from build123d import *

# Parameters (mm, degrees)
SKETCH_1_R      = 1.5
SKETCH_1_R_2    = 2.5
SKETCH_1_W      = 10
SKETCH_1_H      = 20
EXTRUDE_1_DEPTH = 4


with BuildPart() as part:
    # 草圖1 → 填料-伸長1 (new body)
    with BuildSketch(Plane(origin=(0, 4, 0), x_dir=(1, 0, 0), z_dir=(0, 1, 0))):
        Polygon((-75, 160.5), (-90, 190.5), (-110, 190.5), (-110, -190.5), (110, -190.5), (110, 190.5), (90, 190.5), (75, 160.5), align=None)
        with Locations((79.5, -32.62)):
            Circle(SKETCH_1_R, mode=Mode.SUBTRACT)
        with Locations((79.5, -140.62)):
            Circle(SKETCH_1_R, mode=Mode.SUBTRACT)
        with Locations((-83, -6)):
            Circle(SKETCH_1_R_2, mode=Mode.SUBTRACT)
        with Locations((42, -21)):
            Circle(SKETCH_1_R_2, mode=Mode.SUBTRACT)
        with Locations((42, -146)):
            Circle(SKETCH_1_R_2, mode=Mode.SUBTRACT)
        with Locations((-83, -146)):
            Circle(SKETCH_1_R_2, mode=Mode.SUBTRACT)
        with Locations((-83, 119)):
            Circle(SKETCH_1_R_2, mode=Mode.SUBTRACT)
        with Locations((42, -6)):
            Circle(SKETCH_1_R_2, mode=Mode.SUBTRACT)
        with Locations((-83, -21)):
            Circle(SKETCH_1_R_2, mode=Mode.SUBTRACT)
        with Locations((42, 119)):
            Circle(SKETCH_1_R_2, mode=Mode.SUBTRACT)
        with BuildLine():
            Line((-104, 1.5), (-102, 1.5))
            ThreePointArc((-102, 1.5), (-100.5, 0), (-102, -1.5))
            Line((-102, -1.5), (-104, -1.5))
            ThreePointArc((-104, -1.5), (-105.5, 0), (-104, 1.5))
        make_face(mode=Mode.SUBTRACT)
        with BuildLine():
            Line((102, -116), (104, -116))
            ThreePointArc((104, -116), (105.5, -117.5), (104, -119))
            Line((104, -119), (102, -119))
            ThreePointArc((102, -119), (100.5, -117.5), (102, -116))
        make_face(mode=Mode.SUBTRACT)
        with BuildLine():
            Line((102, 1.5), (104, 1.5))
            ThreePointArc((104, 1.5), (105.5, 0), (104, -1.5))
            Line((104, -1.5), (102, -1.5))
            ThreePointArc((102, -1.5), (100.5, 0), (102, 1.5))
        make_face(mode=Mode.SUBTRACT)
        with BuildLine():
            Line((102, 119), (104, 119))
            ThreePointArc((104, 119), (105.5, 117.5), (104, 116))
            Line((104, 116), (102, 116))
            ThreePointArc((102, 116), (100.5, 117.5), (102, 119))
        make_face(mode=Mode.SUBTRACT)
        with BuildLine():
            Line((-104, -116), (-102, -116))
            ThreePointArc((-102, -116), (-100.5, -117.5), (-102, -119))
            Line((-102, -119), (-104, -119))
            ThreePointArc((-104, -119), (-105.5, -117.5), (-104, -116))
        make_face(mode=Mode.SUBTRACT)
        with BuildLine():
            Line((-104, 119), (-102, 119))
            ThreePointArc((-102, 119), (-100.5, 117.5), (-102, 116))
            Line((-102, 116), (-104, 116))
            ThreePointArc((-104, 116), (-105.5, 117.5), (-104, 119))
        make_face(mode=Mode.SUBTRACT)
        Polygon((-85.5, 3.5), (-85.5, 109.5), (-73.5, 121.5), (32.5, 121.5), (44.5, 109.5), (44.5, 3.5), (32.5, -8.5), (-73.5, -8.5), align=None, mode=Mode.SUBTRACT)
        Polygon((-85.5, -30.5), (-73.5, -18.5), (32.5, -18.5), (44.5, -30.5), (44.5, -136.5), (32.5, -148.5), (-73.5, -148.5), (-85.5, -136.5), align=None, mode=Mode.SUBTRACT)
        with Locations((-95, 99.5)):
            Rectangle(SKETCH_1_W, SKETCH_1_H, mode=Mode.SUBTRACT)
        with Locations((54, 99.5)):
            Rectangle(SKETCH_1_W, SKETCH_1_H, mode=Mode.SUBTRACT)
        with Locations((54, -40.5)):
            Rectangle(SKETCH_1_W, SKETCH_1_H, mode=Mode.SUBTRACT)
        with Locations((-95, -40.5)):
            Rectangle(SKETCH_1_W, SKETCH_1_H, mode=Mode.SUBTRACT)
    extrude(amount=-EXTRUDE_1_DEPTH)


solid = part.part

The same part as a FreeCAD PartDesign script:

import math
import FreeCAD as App
import Part
import Sketcher

V = App.Vector
Q = App.Units.Quantity

doc = App.newDocument("Part")
body = doc.addObject("PartDesign::Body", "Body")

# Sketch on XZ plane
sketch1 = body.newObject("Sketcher::SketchObject", "Sketch")
sketch1.AttachmentSupport = (doc.getObject("XZ_Plane"), [""])
sketch1.MapMode = "FlatFace"
sketch1.AttachmentOffset = App.Placement(V(0, 0, -4), App.Rotation())
sketch1.addGeometry([
    Part.LineSegment(V(-75, -160.5, 0), V(-90, -190.5, 0)),  # 0
    Part.LineSegment(V(-90, -190.5, 0), V(-110, -190.5, 0)),  # 1
    Part.LineSegment(V(-110, -190.5, 0), V(-110, 190.5, 0)),  # 2
    Part.LineSegment(V(-110, 190.5, 0), V(110, 190.5, 0)),  # 3
    Part.LineSegment(V(110, 190.5, 0), V(110, -190.5, 0)),  # 4
    Part.LineSegment(V(110, -190.5, 0), V(90, -190.5, 0)),  # 5
    Part.LineSegment(V(90, -190.5, 0), V(75, -160.5, 0)),  # 6
    Part.LineSegment(V(75, -160.5, 0), V(-75, -160.5, 0)),  # 7
    Part.Circle(V(-83, 146, 0), V(0, 0, 1), 2.5),  # 8
    Part.ArcOfCircle(Part.Circle(V(-104, 117.5, 0), V(0, 0, 1), 1.5), math.radians(90), math.radians(270)),  # 9
    Part.LineSegment(V(-104, 116, 0), V(-102, 116, 0)),  # 10
    Part.ArcOfCircle(Part.Circle(V(-102, 117.5, 0), V(0, 0, 1), 1.5), math.radians(-90), math.radians(90)),  # 11
    Part.LineSegment(V(-102, 119, 0), V(-104, 119, 0)),  # 12
    Part.LineSegment(V(-85.5, 136.5, 0), V(-85.5, 30.5, 0)),  # 13
    Part.LineSegment(V(-85.5, 30.5, 0), V(-73.5, 18.5, 0)),  # 14
    Part.LineSegment(V(-73.5, 18.5, 0), V(32.5, 18.5, 0)),  # 15
    Part.LineSegment(V(32.5, 18.5, 0), V(44.5, 30.5, 0)),  # 16
    Part.LineSegment(V(44.5, 30.5, 0), V(44.5, 136.5, 0)),  # 17
    Part.LineSegment(V(44.5, 136.5, 0), V(32.5, 148.5, 0)),  # 18
    Part.LineSegment(V(32.5, 148.5, 0), V(-73.5, 148.5, 0)),  # 19
    Part.LineSegment(V(-73.5, 148.5, 0), V(-85.5, 136.5, 0)),  # 20
    Part.LineSegment(V(-90, 50.5, 0), V(-100, 50.5, 0)),  # 21
    Part.LineSegment(V(-100, 50.5, 0), V(-100, 30.5, 0)),  # 22
    Part.LineSegment(V(-100, 30.5, 0), V(-90, 30.5, 0)),  # 23
    Part.LineSegment(V(-90, 30.5, 0), V(-90, 50.5, 0)),  # 24
    Part.Circle(V(-83, 21, 0), V(0, 0, 1), 2.5),  # 25
    Part.Circle(V(42, 146, 0), V(0, 0, 1), 2.5),  # 26
    Part.Circle(V(79.5, 140.62, 0), V(0, 0, 1), 1.5),  # 27
    Part.ArcOfCircle(Part.Circle(V(102, 117.5, 0), V(0, 0, 1), 1.5), math.radians(90), math.radians(270)),  # 28
    Part.LineSegment(V(102, 116, 0), V(104, 116, 0)),  # 29
    Part.ArcOfCircle(Part.Circle(V(104, 117.5, 0), V(0, 0, 1), 1.5), math.radians(-90), math.radians(90)),  # 30
    Part.LineSegment(V(104, 119, 0), V(102, 119, 0)),  # 31
    Part.Circle(V(42, 21, 0), V(0, 0, 1), 2.5),  # 32
    Part.LineSegment(V(59, 50.5, 0), V(49, 50.5, 0)),  # 33
    Part.LineSegment(V(49, 50.5, 0), V(49, 30.5, 0)),  # 34
    Part.LineSegment(V(49, 30.5, 0), V(59, 30.5, 0)),  # 35
    Part.LineSegment(V(59, 30.5, 0), V(59, 50.5, 0)),  # 36
    Part.Circle(V(79.5, 32.62, 0), V(0, 0, 1), 1.5),  # 37
    Part.ArcOfCircle(Part.Circle(V(-104, 0, 0), V(0, 0, 1), 1.5), math.radians(90), math.radians(270)),  # 38
    Part.LineSegment(V(-104, -1.5, 0), V(-102, -1.5, 0)),  # 39
    Part.ArcOfCircle(Part.Circle(V(-102, 0, 0), V(0, 0, 1), 1.5), math.radians(-90), math.radians(90)),  # 40
    Part.LineSegment(V(-102, 1.5, 0), V(-104, 1.5, 0)),  # 41
    Part.Circle(V(-83, 6, 0), V(0, 0, 1), 2.5),  # 42
    Part.LineSegment(V(-90, -89.5, 0), V(-100, -89.5, 0)),  # 43
    Part.LineSegment(V(-100, -89.5, 0), V(-100, -109.5, 0)),  # 44
    Part.LineSegment(V(-100, -109.5, 0), V(-90, -109.5, 0)),  # 45
    Part.LineSegment(V(-90, -109.5, 0), V(-90, -89.5, 0)),  # 46
    Part.ArcOfCircle(Part.Circle(V(-104, -117.5, 0), V(0, 0, 1), 1.5), math.radians(90), math.radians(270)),  # 47
    Part.LineSegment(V(-104, -119, 0), V(-102, -119, 0)),  # 48
    Part.ArcOfCircle(Part.Circle(V(-102, -117.5, 0), V(0, 0, 1), 1.5), math.radians(-90), math.radians(90)),  # 49
    Part.LineSegment(V(-102, -116, 0), V(-104, -116, 0)),  # 50
    Part.Circle(V(-83, -119, 0), V(0, 0, 1), 2.5),  # 51
    Part.LineSegment(V(-73.5, 8.5, 0), V(-85.5, -3.5, 0)),  # 52
    Part.LineSegment(V(-85.5, -3.5, 0), V(-85.5, -109.5, 0)),  # 53
    Part.LineSegment(V(-85.5, -109.5, 0), V(-73.5, -121.5, 0)),  # 54
    Part.LineSegment(V(-73.5, -121.5, 0), V(32.5, -121.5, 0)),  # 55
    Part.LineSegment(V(32.5, -121.5, 0), V(44.5, -109.5, 0)),  # 56
    Part.LineSegment(V(44.5, -109.5, 0), V(44.5, -3.5, 0)),  # 57
    Part.LineSegment(V(44.5, -3.5, 0), V(32.5, 8.5, 0)),  # 58
    Part.LineSegment(V(32.5, 8.5, 0), V(-73.5, 8.5, 0)),  # 59
    Part.Circle(V(42, 6, 0), V(0, 0, 1), 2.5),  # 60
    Part.ArcOfCircle(Part.Circle(V(102, 0, 0), V(0, 0, 1), 1.5), math.radians(90), math.radians(270)),  # 61
    Part.LineSegment(V(102, -1.5, 0), V(104, -1.5, 0)),  # 62
    Part.ArcOfCircle(Part.Circle(V(104, 0, 0), V(0, 0, 1), 1.5), math.radians(-90), math.radians(90)),  # 63
    Part.LineSegment(V(104, 1.5, 0), V(102, 1.5, 0)),  # 64
    Part.Circle(V(42, -119, 0), V(0, 0, 1), 2.5),  # 65
    Part.LineSegment(V(59, -89.5, 0), V(49, -89.5, 0)),  # 66
    Part.LineSegment(V(49, -89.5, 0), V(49, -109.5, 0)),  # 67
    Part.LineSegment(V(49, -109.5, 0), V(59, -109.5, 0)),  # 68
    Part.LineSegment(V(59, -109.5, 0), V(59, -89.5, 0)),  # 69
    Part.ArcOfCircle(Part.Circle(V(102, -117.5, 0), V(0, 0, 1), 1.5), math.radians(90), math.radians(270)),  # 70
    Part.LineSegment(V(102, -119, 0), V(104, -119, 0)),  # 71
    Part.ArcOfCircle(Part.Circle(V(104, -117.5, 0), V(0, 0, 1), 1.5), math.radians(-90), math.radians(90)),  # 72
    Part.LineSegment(V(104, -116, 0), V(102, -116, 0)),  # 73
], False)
sketch1.addConstraint([
    Sketcher.Constraint("Coincident", 0, 2, 1, 1),
    Sketcher.Constraint("Coincident", 1, 2, 2, 1),
    Sketcher.Constraint("Coincident", 2, 2, 3, 1),
    Sketcher.Constraint("Coincident", 3, 2, 4, 1),
    Sketcher.Constraint("Coincident", 4, 2, 5, 1),
    Sketcher.Constraint("Coincident", 5, 2, 6, 1),
    Sketcher.Constraint("Coincident", 6, 2, 7, 1),
    Sketcher.Constraint("Coincident", 7, 2, 0, 1),
    Sketcher.Constraint("Tangent", 9, 2, 10, 1),
    Sketcher.Constraint("Tangent", 10, 2, 11, 1),
    Sketcher.Constraint("Tangent", 11, 2, 12, 1),
    Sketcher.Constraint("Tangent", 12, 2, 9, 1),
    Sketcher.Constraint("Coincident", 13, 2, 14, 1),
    Sketcher.Constraint("Coincident", 14, 2, 15, 1),
    Sketcher.Constraint("Coincident", 15, 2, 16, 1),
    Sketcher.Constraint("Coincident", 16, 2, 17, 1),
    Sketcher.Constraint("Coincident", 17, 2, 18, 1),
    Sketcher.Constraint("Coincident", 18, 2, 19, 1),
    Sketcher.Constraint("Coincident", 19, 2, 20, 1),
    Sketcher.Constraint("Coincident", 20, 2, 13, 1),
    Sketcher.Constraint("Coincident", 21, 2, 22, 1),
    Sketcher.Constraint("Coincident", 22, 2, 23, 1),
    Sketcher.Constraint("Coincident", 23, 2, 24, 1),
    Sketcher.Constraint("Coincident", 24, 2, 21, 1),
    Sketcher.Constraint("Tangent", 28, 2, 29, 1),
    Sketcher.Constraint("Tangent", 29, 2, 30, 1),
    Sketcher.Constraint("Tangent", 30, 2, 31, 1),
    Sketcher.Constraint("Tangent", 31, 2, 28, 1),
    Sketcher.Constraint("Coincident", 33, 2, 34, 1),
    Sketcher.Constraint("Coincident", 34, 2, 35, 1),
    Sketcher.Constraint("Coincident", 35, 2, 36, 1),
    Sketcher.Constraint("Coincident", 36, 2, 33, 1),
    Sketcher.Constraint("Tangent", 38, 2, 39, 1),
    Sketcher.Constraint("Tangent", 39, 2, 40, 1),
    Sketcher.Constraint("Tangent", 40, 2, 41, 1),
    Sketcher.Constraint("Tangent", 41, 2, 38, 1),
    Sketcher.Constraint("Coincident", 43, 2, 44, 1),
    Sketcher.Constraint("Coincident", 44, 2, 45, 1),
    Sketcher.Constraint("Coincident", 45, 2, 46, 1),
    Sketcher.Constraint("Coincident", 46, 2, 43, 1),
    Sketcher.Constraint("Tangent", 47, 2, 48, 1),
    Sketcher.Constraint("Tangent", 48, 2, 49, 1),
    Sketcher.Constraint("Tangent", 49, 2, 50, 1),
    Sketcher.Constraint("Tangent", 50, 2, 47, 1),
    Sketcher.Constraint("Coincident", 52, 2, 53, 1),
    Sketcher.Constraint("Coincident", 53, 2, 54, 1),
    Sketcher.Constraint("Coincident", 54, 2, 55, 1),
    Sketcher.Constraint("Coincident", 55, 2, 56, 1),
    Sketcher.Constraint("Coincident", 56, 2, 57, 1),
    Sketcher.Constraint("Coincident", 57, 2, 58, 1),
    Sketcher.Constraint("Coincident", 58, 2, 59, 1),
    Sketcher.Constraint("Coincident", 59, 2, 52, 1),
    Sketcher.Constraint("Tangent", 61, 2, 62, 1),
    Sketcher.Constraint("Tangent", 62, 2, 63, 1),
    Sketcher.Constraint("Tangent", 63, 2, 64, 1),
    Sketcher.Constraint("Tangent", 64, 2, 61, 1),
    Sketcher.Constraint("Coincident", 66, 2, 67, 1),
    Sketcher.Constraint("Coincident", 67, 2, 68, 1),
    Sketcher.Constraint("Coincident", 68, 2, 69, 1),
    Sketcher.Constraint("Coincident", 69, 2, 66, 1),
    Sketcher.Constraint("Tangent", 70, 2, 71, 1),
    Sketcher.Constraint("Tangent", 71, 2, 72, 1),
    Sketcher.Constraint("Tangent", 72, 2, 73, 1),
    Sketcher.Constraint("Tangent", 73, 2, 70, 1),
    Sketcher.Constraint("Horizontal", 1),
    Sketcher.Constraint("Vertical", 2),
    Sketcher.Constraint("Horizontal", 3),
    Sketcher.Constraint("Vertical", 4),
    Sketcher.Constraint("Horizontal", 5),
    Sketcher.Constraint("Horizontal", 7),
    Sketcher.Constraint("Horizontal", 10),
    Sketcher.Constraint("Horizontal", 12),
    Sketcher.Constraint("Vertical", 13),
    Sketcher.Constraint("Horizontal", 15),
    Sketcher.Constraint("Vertical", 17),
    Sketcher.Constraint("Horizontal", 19),
    Sketcher.Constraint("Horizontal", 21),
    Sketcher.Constraint("Vertical", 22),
    Sketcher.Constraint("Horizontal", 23),
    Sketcher.Constraint("Vertical", 24),
    Sketcher.Constraint("Horizontal", 29),
    Sketcher.Constraint("Horizontal", 31),
    Sketcher.Constraint("Horizontal", 33),
    Sketcher.Constraint("Vertical", 34),
    Sketcher.Constraint("Horizontal", 35),
    Sketcher.Constraint("Vertical", 36),
    Sketcher.Constraint("Horizontal", 39),
    Sketcher.Constraint("Horizontal", 41),
    Sketcher.Constraint("Horizontal", 43),
    Sketcher.Constraint("Vertical", 44),
    Sketcher.Constraint("Horizontal", 45),
    Sketcher.Constraint("Vertical", 46),
    Sketcher.Constraint("Horizontal", 48),
    Sketcher.Constraint("Horizontal", 50),
    Sketcher.Constraint("Vertical", 53),
    Sketcher.Constraint("Horizontal", 55),
    Sketcher.Constraint("Vertical", 57),
    Sketcher.Constraint("Horizontal", 59),
    Sketcher.Constraint("Horizontal", 62),
    Sketcher.Constraint("Horizontal", 64),
    Sketcher.Constraint("Horizontal", 66),
    Sketcher.Constraint("Vertical", 67),
    Sketcher.Constraint("Horizontal", 68),
    Sketcher.Constraint("Vertical", 69),
    Sketcher.Constraint("Horizontal", 71),
    Sketcher.Constraint("Horizontal", 73),
    Sketcher.Constraint("Equal", 8, 25),
    Sketcher.Constraint("Equal", 25, 26),
    Sketcher.Constraint("Equal", 11, 27),
    Sketcher.Constraint("Equal", 27, 28),
    Sketcher.Constraint("Equal", 26, 32),
    Sketcher.Constraint("Equal", 30, 37),
    Sketcher.Constraint("Equal", 37, 38),
    Sketcher.Constraint("Equal", 32, 42),
    Sketcher.Constraint("Equal", 40, 47),
    Sketcher.Constraint("Equal", 42, 51),
    Sketcher.Constraint("Equal", 51, 60),
    Sketcher.Constraint("Equal", 49, 61),
    Sketcher.Constraint("Equal", 60, 65),
    Sketcher.Constraint("Equal", 63, 70),
    Sketcher.Constraint("Symmetric", 30, 3, 47, 3, -1, 1),
    Sketcher.Constraint("Symmetric", 40, 3, 61, 3, -1, 1),
    Sketcher.Constraint("Symmetric", 11, 3, 70, 3, -1, 1),
    Sketcher.Constraint("Symmetric", 1, 2, 3, 2, -1, 1),
    Sketcher.Constraint("Symmetric", 11, 3, 28, 3, -2),
    Sketcher.Constraint("Symmetric", 38, 3, 63, 3, -2),
    Sketcher.Constraint("Symmetric", 0, 2, 5, 2, -2),
    Sketcher.Constraint("Perpendicular", 14, 16),
    Sketcher.Constraint("Perpendicular", 16, 18),
    Sketcher.Constraint("Perpendicular", 18, 20),
    Sketcher.Constraint("Parallel", 20, 52),
    Sketcher.Constraint("Perpendicular", 52, 54),
    Sketcher.Constraint("Perpendicular", 54, 56),
    Sketcher.Constraint("Perpendicular", 56, 58),
    Sketcher.Constraint("Horizontal", 8, 3, 26, 3),
    Sketcher.Constraint("Horizontal", 25, 3, 32, 3),
    Sketcher.Constraint("Horizontal", 42, 3, 60, 3),
    Sketcher.Constraint("Horizontal", 51, 3, 65, 3),
    Sketcher.Constraint("Horizontal", 13, 2, 16, 2),
    Sketcher.Constraint("Horizontal", 17, 2, 20, 2),
    Sketcher.Constraint("Horizontal", 16, 2, 22, 2),
    Sketcher.Constraint("Horizontal", 24, 2, 33, 2),
    Sketcher.Constraint("Horizontal", 23, 2, 34, 2),
    Sketcher.Constraint("Horizontal", 65, 3, 47, 2),
    Sketcher.Constraint("Horizontal", 45, 2, 53, 2),
    Sketcher.Constraint("Horizontal", 53, 2, 56, 2),
    Sketcher.Constraint("Horizontal", 52, 2, 57, 2),
    Sketcher.Constraint("Horizontal", 46, 2, 66, 2),
    Sketcher.Constraint("Horizontal", 56, 2, 67, 2),
    Sketcher.Constraint("Vertical", 8, 3, 25, 3),
    Sketcher.Constraint("Vertical", 26, 3, 32, 3),
    Sketcher.Constraint("Vertical", 27, 3, 37, 3),
    Sketcher.Constraint("Vertical", 9, 3, 38, 3),
    Sketcher.Constraint("Vertical", 11, 3, 40, 3),
    Sketcher.Constraint("Vertical", 25, 3, 42, 3),
    Sketcher.Constraint("Vertical", 38, 3, 47, 3),
    Sketcher.Constraint("Vertical", 40, 3, 49, 3),
    Sketcher.Constraint("Vertical", 42, 3, 51, 3),
    Sketcher.Constraint("Vertical", 32, 3, 60, 3),
    Sketcher.Constraint("Vertical", 60, 3, 65, 3),
    Sketcher.Constraint("Vertical", 63, 3, 72, 3),
    Sketcher.Constraint("Vertical", 15, 2, 18, 2),
    Sketcher.Constraint("Vertical", 14, 2, 19, 2),
    Sketcher.Constraint("Vertical", 0, 2, 23, 2),
    Sketcher.Constraint("Vertical", 22, 2, 43, 2),
    Sketcher.Constraint("Vertical", 24, 2, 45, 2),
    Sketcher.Constraint("Vertical", 20, 2, 52, 2),
    Sketcher.Constraint("Vertical", 19, 2, 54, 2),
    Sketcher.Constraint("Vertical", 18, 2, 55, 2),
    Sketcher.Constraint("Vertical", 55, 2, 58, 2),
    Sketcher.Constraint("Vertical", 34, 2, 66, 2),
    Sketcher.Constraint("Vertical", 36, 2, 68, 2),
    Sketcher.Constraint("Equal", 23, 33),
    Sketcher.Constraint("Equal", 59, 13),
    Sketcher.Constraint("Equal", 5, 22),
    Sketcher.Constraint("Equal", 36, 44),
    Sketcher.Constraint("Equal", 17, 53),
    Sketcher.Constraint("Equal", 0, 6),
    Sketcher.Constraint("Diameter", 8, Q("5 mm")),
    Sketcher.Constraint("Diameter", 27, Q("3 mm")),
    Sketcher.Constraint("DistanceX", 1, 2, 1, 1, Q("20 mm")),
    Sketcher.Constraint("DistanceX", 3, 1, 3, 2, Q("220 mm")),
    Sketcher.Constraint("DistanceX", 7, 2, 7, 1, Q("150 mm")),
    Sketcher.Constraint("DistanceX", 10, 1, 10, 2, Q("2 mm")),
    Sketcher.Constraint("DistanceX", 15, 1, 15, 2, Q("106 mm")),
    Sketcher.Constraint("DistanceX", 21, 2, 21, 1, Q("10 mm")),
    Sketcher.Constraint("DistanceY", 2, 1, 2, 2, Q("381 mm")),
    Sketcher.Constraint("DistanceX", 8, 3, -1, 1, Q("83 mm")),
    Sketcher.Constraint("DistanceY", -1, 1, 8, 3, Q("146 mm")),
    Sketcher.Constraint("DistanceX", 9, 3, -1, 1, Q("104 mm")),
    Sketcher.Constraint("DistanceY", -1, 1, 25, 3, Q("21 mm")),
    Sketcher.Constraint("DistanceX", -1, 1, 26, 3, Q("42 mm")),
    Sketcher.Constraint("DistanceY", -1, 1, 42, 3, Q("6 mm")),
    Sketcher.Constraint("DistanceY", 51, 3, -1, 1, Q("119 mm")),
    Sketcher.Constraint("DistanceX", -1, 1, 33, 2, Q("49 mm")),
    Sketcher.Constraint("DistanceX", -1, 1, 27, 3, Q("79.5 mm")),
    Sketcher.Constraint("DistanceY", 6, 2, -1, 1, Q("160.5 mm")),
    Sketcher.Constraint("DistanceX", 13, 2, -1, 1, Q("85.5 mm")),
    Sketcher.Constraint("DistanceY", -1, 1, 13, 2, Q("30.5 mm")),
    Sketcher.Constraint("DistanceX", 14, 2, -1, 1, Q("73.5 mm")),
    Sketcher.Constraint("DistanceY", 43, 2, -1, 1, Q("89.5 mm")),
    Sketcher.Constraint("DistanceY", -1, 1, 27, 3, Q("140.62 mm")),
    Sketcher.Constraint("DistanceY", -1, 1, 37, 3, Q("32.62 mm")),
])
pad1 = body.newObject("PartDesign::Pad", "Pad")
pad1.Profile = sketch1
pad1.Length = 4

doc.recompute()
